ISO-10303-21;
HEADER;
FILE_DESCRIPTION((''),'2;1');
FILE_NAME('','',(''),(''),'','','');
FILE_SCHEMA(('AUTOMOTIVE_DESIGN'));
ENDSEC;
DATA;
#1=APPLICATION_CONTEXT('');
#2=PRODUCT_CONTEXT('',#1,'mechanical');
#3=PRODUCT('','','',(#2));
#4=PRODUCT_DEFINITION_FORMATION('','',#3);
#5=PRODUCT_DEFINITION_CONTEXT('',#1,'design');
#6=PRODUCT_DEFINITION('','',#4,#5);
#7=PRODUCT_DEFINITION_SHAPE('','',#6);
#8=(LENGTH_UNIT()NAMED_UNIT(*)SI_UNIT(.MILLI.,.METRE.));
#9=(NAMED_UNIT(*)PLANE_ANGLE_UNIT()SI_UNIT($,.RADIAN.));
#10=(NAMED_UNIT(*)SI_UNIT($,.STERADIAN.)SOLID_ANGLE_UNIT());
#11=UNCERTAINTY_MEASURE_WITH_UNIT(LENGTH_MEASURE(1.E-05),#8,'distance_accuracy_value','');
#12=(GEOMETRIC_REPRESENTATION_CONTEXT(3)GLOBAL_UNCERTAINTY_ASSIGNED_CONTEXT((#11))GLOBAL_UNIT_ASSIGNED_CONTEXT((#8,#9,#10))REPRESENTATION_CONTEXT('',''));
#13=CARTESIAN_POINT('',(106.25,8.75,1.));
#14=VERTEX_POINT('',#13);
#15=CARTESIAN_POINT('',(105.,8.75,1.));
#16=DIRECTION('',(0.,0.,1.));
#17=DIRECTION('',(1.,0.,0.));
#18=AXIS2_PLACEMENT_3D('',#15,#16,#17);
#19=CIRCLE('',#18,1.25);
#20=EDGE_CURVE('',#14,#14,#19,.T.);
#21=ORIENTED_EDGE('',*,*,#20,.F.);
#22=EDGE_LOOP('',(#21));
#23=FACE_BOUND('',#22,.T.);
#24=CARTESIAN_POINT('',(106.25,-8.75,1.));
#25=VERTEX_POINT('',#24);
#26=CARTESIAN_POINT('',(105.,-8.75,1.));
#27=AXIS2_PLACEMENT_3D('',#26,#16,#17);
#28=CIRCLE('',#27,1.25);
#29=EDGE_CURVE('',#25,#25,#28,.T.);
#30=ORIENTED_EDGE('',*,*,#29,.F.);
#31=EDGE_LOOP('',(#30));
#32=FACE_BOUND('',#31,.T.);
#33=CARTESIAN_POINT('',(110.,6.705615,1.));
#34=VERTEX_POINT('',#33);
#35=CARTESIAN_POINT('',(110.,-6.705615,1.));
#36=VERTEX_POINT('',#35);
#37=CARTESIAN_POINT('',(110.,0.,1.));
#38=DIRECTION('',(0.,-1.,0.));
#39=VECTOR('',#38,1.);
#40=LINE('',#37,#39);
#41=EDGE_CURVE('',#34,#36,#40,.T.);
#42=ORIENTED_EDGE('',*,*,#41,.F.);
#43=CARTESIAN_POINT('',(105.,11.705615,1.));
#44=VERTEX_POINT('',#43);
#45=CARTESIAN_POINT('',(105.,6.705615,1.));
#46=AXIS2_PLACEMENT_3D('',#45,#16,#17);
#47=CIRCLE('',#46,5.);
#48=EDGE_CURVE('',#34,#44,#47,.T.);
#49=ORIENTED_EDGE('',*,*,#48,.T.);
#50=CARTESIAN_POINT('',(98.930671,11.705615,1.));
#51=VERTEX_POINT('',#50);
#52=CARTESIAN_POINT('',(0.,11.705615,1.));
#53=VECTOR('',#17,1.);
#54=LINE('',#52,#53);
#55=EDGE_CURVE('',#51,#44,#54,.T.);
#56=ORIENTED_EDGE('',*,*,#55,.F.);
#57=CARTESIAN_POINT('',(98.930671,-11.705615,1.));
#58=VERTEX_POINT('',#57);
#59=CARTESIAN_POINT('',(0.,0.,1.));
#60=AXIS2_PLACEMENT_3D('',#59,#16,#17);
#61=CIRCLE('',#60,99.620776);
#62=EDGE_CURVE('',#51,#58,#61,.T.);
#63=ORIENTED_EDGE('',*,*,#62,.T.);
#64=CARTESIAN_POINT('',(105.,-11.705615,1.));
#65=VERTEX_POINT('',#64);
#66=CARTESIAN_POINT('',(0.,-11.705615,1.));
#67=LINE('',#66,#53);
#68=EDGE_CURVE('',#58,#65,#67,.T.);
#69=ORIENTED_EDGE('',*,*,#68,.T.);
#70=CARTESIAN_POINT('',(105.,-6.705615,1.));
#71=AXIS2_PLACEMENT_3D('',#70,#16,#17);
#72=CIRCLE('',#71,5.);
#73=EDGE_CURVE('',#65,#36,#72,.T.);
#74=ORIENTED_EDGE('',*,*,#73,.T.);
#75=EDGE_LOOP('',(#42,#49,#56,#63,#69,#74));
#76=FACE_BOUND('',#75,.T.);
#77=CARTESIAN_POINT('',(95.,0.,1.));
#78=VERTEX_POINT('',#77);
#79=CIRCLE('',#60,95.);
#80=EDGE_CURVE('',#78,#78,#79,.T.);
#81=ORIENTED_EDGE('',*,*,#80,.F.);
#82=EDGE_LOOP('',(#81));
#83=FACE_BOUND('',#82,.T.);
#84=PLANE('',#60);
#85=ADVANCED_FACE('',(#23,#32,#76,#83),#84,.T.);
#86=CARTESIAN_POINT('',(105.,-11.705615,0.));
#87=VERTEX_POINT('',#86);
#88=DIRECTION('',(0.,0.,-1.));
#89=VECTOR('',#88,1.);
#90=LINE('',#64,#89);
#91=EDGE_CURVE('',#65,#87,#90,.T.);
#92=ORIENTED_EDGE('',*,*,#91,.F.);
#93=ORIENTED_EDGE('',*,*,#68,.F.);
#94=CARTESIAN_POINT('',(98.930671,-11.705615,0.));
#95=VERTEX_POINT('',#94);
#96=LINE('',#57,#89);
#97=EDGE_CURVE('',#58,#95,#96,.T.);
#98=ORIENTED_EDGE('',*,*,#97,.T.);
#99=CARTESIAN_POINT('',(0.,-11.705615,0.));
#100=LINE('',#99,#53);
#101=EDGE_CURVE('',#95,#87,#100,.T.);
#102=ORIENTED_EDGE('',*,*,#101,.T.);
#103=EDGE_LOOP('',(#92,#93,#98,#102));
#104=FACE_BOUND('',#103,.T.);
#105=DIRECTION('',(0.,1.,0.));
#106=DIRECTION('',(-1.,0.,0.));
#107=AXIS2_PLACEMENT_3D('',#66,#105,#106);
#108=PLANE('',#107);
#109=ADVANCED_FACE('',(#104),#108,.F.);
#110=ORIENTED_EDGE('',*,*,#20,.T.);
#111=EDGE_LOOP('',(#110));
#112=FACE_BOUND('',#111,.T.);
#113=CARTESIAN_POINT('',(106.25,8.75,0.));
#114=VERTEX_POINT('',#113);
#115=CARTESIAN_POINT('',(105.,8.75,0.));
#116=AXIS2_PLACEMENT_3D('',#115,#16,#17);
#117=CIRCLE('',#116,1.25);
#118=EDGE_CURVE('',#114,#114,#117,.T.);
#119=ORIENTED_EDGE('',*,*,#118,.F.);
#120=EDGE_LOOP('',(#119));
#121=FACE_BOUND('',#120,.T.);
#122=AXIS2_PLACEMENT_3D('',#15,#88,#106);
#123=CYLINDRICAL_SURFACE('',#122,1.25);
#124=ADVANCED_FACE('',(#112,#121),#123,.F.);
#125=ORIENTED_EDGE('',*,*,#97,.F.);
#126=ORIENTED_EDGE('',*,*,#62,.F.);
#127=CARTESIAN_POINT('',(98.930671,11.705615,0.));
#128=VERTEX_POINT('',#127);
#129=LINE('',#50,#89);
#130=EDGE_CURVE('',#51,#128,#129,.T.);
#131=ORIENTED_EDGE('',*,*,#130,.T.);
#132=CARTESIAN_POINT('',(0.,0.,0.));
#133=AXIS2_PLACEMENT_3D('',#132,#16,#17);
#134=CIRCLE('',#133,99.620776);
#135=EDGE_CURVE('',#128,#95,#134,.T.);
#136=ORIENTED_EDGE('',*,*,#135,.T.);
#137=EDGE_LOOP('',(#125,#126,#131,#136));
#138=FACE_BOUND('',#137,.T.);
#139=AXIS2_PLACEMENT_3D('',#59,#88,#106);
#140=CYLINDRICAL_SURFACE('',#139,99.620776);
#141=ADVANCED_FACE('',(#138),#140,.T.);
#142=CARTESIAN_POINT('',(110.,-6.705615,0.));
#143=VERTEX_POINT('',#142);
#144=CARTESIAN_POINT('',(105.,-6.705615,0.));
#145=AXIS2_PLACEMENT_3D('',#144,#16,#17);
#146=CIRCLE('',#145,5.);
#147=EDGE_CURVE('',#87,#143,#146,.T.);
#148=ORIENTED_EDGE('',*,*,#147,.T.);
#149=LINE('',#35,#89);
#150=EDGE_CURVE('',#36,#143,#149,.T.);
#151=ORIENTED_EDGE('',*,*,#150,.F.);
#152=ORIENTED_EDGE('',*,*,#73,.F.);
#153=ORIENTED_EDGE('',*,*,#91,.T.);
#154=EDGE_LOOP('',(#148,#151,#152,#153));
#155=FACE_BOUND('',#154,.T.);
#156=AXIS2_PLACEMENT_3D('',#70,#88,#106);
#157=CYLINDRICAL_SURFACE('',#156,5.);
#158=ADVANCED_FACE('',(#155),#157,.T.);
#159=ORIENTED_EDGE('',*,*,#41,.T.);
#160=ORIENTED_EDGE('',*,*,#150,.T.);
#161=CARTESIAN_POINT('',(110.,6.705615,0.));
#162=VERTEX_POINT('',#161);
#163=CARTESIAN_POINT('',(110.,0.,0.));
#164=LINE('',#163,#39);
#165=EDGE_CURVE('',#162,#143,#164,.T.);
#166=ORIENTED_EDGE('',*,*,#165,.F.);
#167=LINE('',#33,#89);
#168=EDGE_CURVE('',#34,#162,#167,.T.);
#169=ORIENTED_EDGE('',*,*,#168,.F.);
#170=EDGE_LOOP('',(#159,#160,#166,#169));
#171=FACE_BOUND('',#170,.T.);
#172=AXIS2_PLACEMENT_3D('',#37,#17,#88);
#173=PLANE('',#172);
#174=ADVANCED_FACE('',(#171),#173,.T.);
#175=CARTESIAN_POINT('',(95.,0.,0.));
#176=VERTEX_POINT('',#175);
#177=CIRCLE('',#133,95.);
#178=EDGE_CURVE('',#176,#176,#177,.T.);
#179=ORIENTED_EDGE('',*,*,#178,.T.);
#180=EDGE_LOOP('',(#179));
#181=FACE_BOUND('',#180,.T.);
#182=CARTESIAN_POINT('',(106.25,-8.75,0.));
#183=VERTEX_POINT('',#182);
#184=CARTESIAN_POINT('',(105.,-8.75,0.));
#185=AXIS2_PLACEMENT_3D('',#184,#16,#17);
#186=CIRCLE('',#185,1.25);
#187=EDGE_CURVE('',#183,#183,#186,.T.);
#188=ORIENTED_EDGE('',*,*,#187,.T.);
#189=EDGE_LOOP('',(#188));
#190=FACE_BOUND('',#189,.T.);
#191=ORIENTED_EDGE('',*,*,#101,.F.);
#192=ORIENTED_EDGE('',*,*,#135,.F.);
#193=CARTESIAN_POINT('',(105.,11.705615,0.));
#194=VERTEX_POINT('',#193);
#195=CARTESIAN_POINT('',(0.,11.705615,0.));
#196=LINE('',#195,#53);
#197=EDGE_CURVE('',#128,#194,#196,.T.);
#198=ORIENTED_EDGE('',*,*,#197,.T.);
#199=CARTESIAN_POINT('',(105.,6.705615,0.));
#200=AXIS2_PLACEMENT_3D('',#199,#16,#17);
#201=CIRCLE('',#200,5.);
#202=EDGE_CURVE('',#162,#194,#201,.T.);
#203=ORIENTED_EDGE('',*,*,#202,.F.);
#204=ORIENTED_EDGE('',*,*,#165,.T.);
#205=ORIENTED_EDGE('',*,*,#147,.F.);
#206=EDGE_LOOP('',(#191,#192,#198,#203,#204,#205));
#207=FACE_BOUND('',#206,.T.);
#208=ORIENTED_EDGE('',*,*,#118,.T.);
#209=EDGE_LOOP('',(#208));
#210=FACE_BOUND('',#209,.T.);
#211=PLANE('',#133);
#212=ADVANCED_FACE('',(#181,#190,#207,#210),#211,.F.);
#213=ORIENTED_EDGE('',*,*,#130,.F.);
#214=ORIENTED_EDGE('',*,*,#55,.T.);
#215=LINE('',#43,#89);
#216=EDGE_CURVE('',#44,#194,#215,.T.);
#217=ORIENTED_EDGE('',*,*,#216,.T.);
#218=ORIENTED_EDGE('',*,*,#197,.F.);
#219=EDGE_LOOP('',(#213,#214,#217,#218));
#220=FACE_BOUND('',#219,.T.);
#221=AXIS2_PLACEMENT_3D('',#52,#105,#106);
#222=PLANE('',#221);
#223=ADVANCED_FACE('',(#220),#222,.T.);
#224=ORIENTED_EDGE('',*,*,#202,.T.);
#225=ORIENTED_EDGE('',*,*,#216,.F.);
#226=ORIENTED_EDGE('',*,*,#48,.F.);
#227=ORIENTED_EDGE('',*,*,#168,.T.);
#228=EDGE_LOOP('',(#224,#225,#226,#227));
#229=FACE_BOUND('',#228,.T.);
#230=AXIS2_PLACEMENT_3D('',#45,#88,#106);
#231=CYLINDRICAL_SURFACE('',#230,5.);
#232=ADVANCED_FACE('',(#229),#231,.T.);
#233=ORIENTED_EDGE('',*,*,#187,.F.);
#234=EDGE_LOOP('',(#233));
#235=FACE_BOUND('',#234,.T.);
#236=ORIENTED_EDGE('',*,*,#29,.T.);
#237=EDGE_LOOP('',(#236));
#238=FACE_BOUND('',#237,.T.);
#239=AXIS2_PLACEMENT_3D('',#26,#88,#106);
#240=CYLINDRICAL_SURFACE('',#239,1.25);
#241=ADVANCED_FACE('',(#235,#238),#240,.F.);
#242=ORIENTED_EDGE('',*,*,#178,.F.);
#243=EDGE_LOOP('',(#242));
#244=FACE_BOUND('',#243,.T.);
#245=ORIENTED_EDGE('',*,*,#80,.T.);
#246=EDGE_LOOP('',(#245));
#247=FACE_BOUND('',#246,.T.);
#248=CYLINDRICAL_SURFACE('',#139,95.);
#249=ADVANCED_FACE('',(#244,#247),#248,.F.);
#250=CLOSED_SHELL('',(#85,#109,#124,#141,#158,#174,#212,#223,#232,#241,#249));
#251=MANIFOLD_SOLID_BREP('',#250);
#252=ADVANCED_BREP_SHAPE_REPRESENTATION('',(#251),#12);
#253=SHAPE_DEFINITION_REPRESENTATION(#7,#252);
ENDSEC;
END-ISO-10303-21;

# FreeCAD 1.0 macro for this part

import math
import FreeCAD as App
import Part
import Sketcher

V = App.Vector
Q = App.Units.Quantity

doc = App.newDocument("Part")
body = doc.addObject("PartDesign::Body", "Body")

# Sketch on XY plane
sketch1 = body.newObject("Sketcher::SketchObject", "Sketch")
sketch1.AttachmentSupport = (doc.getObject("XY_Plane"), [""])
sketch1.MapMode = "FlatFace"
sketch1.addGeometry([
    Part.LineSegment(V(105, 11.7, 0), V(98.9, 11.7, 0)),  # 0
    Part.ArcOfCircle(Part.Circle(V(0, 0, 0), V(0, 0, 1), 99.6), math.radians(7), math.radians(353)),  # 1
    Part.LineSegment(V(98.9, -11.7, 0), V(105, -11.7, 0)),  # 2
    Part.ArcOfCircle(Part.Circle(V(105, -6.7, 0), V(0, 0, 1), 5), math.radians(-90), math.radians(0)),  # 3
    Part.LineSegment(V(110, -6.7, 0), V(110, 6.7, 0)),  # 4
    Part.ArcOfCircle(Part.Circle(V(105, 6.7, 0), V(0, 0, 1), 5), math.radians(0), math.radians(90)),  # 5
    Part.Circle(V(105, -8.8, 0), V(0, 0, 1), 1.2),  # 6
    Part.Circle(V(0, 0, 0), V(0, 0, 1), 95),  # 7
    Part.Circle(V(105, 8.8, 0), V(0, 0, 1), 1.2),  # 8
], False)
sketch1.addConstraint([
    Sketcher.Constraint("Coincident", 0, 2, 1, 1),
    Sketcher.Constraint("Coincident", 1, 2, 2, 1),
    Sketcher.Constraint("Tangent", 2, 2, 3, 1),
    Sketcher.Constraint("Tangent", 3, 2, 4, 1),
    Sketcher.Constraint("Tangent", 4, 2, 5, 1),
    Sketcher.Constraint("Tangent", 5, 2, 0, 1),
    Sketcher.Constraint("Horizontal", 0),
    Sketcher.Constraint("Horizontal", 2),
    Sketcher.Constraint("Vertical", 4),
    Sketcher.Constraint("Coincident", 1, 3, -1, 1),
    Sketcher.Constraint("Coincident", 7, 3, -1, 1),
    Sketcher.Constraint("Equal", 3, 5),
    Sketcher.Constraint("Equal", 6, 8),
    Sketcher.Constraint("Symmetric", 6, 3, 8, 3, -1),
    Sketcher.Constraint("Vertical", 5, 3, 6, 3),
    Sketcher.Constraint("Vertical", 0, 2, 1, 2),
    Sketcher.Constraint("Diameter", 7, Q("190 mm")),
    Sketcher.Constraint("Radius", 3, Q("5 mm")),
    Sketcher.Constraint("Diameter", 6, Q("2.5 mm")),
    Sketcher.Constraint("DistanceX", -1, 1, 3, 3, Q("105 mm")),
    Sketcher.Constraint("DistanceY", 6, 3, 8, 3, Q("17.5 mm")),
    Sketcher.Constraint("Radius", 1, Q("99.620776 mm")),
    Sketcher.Constraint("DistanceX", 0, 2, 0, 1, Q("6.069329 mm")),
])
pad1 = body.newObject("PartDesign::Pad", "Pad")
pad1.Profile = sketch1
pad1.Length = 1

doc.recompute()
